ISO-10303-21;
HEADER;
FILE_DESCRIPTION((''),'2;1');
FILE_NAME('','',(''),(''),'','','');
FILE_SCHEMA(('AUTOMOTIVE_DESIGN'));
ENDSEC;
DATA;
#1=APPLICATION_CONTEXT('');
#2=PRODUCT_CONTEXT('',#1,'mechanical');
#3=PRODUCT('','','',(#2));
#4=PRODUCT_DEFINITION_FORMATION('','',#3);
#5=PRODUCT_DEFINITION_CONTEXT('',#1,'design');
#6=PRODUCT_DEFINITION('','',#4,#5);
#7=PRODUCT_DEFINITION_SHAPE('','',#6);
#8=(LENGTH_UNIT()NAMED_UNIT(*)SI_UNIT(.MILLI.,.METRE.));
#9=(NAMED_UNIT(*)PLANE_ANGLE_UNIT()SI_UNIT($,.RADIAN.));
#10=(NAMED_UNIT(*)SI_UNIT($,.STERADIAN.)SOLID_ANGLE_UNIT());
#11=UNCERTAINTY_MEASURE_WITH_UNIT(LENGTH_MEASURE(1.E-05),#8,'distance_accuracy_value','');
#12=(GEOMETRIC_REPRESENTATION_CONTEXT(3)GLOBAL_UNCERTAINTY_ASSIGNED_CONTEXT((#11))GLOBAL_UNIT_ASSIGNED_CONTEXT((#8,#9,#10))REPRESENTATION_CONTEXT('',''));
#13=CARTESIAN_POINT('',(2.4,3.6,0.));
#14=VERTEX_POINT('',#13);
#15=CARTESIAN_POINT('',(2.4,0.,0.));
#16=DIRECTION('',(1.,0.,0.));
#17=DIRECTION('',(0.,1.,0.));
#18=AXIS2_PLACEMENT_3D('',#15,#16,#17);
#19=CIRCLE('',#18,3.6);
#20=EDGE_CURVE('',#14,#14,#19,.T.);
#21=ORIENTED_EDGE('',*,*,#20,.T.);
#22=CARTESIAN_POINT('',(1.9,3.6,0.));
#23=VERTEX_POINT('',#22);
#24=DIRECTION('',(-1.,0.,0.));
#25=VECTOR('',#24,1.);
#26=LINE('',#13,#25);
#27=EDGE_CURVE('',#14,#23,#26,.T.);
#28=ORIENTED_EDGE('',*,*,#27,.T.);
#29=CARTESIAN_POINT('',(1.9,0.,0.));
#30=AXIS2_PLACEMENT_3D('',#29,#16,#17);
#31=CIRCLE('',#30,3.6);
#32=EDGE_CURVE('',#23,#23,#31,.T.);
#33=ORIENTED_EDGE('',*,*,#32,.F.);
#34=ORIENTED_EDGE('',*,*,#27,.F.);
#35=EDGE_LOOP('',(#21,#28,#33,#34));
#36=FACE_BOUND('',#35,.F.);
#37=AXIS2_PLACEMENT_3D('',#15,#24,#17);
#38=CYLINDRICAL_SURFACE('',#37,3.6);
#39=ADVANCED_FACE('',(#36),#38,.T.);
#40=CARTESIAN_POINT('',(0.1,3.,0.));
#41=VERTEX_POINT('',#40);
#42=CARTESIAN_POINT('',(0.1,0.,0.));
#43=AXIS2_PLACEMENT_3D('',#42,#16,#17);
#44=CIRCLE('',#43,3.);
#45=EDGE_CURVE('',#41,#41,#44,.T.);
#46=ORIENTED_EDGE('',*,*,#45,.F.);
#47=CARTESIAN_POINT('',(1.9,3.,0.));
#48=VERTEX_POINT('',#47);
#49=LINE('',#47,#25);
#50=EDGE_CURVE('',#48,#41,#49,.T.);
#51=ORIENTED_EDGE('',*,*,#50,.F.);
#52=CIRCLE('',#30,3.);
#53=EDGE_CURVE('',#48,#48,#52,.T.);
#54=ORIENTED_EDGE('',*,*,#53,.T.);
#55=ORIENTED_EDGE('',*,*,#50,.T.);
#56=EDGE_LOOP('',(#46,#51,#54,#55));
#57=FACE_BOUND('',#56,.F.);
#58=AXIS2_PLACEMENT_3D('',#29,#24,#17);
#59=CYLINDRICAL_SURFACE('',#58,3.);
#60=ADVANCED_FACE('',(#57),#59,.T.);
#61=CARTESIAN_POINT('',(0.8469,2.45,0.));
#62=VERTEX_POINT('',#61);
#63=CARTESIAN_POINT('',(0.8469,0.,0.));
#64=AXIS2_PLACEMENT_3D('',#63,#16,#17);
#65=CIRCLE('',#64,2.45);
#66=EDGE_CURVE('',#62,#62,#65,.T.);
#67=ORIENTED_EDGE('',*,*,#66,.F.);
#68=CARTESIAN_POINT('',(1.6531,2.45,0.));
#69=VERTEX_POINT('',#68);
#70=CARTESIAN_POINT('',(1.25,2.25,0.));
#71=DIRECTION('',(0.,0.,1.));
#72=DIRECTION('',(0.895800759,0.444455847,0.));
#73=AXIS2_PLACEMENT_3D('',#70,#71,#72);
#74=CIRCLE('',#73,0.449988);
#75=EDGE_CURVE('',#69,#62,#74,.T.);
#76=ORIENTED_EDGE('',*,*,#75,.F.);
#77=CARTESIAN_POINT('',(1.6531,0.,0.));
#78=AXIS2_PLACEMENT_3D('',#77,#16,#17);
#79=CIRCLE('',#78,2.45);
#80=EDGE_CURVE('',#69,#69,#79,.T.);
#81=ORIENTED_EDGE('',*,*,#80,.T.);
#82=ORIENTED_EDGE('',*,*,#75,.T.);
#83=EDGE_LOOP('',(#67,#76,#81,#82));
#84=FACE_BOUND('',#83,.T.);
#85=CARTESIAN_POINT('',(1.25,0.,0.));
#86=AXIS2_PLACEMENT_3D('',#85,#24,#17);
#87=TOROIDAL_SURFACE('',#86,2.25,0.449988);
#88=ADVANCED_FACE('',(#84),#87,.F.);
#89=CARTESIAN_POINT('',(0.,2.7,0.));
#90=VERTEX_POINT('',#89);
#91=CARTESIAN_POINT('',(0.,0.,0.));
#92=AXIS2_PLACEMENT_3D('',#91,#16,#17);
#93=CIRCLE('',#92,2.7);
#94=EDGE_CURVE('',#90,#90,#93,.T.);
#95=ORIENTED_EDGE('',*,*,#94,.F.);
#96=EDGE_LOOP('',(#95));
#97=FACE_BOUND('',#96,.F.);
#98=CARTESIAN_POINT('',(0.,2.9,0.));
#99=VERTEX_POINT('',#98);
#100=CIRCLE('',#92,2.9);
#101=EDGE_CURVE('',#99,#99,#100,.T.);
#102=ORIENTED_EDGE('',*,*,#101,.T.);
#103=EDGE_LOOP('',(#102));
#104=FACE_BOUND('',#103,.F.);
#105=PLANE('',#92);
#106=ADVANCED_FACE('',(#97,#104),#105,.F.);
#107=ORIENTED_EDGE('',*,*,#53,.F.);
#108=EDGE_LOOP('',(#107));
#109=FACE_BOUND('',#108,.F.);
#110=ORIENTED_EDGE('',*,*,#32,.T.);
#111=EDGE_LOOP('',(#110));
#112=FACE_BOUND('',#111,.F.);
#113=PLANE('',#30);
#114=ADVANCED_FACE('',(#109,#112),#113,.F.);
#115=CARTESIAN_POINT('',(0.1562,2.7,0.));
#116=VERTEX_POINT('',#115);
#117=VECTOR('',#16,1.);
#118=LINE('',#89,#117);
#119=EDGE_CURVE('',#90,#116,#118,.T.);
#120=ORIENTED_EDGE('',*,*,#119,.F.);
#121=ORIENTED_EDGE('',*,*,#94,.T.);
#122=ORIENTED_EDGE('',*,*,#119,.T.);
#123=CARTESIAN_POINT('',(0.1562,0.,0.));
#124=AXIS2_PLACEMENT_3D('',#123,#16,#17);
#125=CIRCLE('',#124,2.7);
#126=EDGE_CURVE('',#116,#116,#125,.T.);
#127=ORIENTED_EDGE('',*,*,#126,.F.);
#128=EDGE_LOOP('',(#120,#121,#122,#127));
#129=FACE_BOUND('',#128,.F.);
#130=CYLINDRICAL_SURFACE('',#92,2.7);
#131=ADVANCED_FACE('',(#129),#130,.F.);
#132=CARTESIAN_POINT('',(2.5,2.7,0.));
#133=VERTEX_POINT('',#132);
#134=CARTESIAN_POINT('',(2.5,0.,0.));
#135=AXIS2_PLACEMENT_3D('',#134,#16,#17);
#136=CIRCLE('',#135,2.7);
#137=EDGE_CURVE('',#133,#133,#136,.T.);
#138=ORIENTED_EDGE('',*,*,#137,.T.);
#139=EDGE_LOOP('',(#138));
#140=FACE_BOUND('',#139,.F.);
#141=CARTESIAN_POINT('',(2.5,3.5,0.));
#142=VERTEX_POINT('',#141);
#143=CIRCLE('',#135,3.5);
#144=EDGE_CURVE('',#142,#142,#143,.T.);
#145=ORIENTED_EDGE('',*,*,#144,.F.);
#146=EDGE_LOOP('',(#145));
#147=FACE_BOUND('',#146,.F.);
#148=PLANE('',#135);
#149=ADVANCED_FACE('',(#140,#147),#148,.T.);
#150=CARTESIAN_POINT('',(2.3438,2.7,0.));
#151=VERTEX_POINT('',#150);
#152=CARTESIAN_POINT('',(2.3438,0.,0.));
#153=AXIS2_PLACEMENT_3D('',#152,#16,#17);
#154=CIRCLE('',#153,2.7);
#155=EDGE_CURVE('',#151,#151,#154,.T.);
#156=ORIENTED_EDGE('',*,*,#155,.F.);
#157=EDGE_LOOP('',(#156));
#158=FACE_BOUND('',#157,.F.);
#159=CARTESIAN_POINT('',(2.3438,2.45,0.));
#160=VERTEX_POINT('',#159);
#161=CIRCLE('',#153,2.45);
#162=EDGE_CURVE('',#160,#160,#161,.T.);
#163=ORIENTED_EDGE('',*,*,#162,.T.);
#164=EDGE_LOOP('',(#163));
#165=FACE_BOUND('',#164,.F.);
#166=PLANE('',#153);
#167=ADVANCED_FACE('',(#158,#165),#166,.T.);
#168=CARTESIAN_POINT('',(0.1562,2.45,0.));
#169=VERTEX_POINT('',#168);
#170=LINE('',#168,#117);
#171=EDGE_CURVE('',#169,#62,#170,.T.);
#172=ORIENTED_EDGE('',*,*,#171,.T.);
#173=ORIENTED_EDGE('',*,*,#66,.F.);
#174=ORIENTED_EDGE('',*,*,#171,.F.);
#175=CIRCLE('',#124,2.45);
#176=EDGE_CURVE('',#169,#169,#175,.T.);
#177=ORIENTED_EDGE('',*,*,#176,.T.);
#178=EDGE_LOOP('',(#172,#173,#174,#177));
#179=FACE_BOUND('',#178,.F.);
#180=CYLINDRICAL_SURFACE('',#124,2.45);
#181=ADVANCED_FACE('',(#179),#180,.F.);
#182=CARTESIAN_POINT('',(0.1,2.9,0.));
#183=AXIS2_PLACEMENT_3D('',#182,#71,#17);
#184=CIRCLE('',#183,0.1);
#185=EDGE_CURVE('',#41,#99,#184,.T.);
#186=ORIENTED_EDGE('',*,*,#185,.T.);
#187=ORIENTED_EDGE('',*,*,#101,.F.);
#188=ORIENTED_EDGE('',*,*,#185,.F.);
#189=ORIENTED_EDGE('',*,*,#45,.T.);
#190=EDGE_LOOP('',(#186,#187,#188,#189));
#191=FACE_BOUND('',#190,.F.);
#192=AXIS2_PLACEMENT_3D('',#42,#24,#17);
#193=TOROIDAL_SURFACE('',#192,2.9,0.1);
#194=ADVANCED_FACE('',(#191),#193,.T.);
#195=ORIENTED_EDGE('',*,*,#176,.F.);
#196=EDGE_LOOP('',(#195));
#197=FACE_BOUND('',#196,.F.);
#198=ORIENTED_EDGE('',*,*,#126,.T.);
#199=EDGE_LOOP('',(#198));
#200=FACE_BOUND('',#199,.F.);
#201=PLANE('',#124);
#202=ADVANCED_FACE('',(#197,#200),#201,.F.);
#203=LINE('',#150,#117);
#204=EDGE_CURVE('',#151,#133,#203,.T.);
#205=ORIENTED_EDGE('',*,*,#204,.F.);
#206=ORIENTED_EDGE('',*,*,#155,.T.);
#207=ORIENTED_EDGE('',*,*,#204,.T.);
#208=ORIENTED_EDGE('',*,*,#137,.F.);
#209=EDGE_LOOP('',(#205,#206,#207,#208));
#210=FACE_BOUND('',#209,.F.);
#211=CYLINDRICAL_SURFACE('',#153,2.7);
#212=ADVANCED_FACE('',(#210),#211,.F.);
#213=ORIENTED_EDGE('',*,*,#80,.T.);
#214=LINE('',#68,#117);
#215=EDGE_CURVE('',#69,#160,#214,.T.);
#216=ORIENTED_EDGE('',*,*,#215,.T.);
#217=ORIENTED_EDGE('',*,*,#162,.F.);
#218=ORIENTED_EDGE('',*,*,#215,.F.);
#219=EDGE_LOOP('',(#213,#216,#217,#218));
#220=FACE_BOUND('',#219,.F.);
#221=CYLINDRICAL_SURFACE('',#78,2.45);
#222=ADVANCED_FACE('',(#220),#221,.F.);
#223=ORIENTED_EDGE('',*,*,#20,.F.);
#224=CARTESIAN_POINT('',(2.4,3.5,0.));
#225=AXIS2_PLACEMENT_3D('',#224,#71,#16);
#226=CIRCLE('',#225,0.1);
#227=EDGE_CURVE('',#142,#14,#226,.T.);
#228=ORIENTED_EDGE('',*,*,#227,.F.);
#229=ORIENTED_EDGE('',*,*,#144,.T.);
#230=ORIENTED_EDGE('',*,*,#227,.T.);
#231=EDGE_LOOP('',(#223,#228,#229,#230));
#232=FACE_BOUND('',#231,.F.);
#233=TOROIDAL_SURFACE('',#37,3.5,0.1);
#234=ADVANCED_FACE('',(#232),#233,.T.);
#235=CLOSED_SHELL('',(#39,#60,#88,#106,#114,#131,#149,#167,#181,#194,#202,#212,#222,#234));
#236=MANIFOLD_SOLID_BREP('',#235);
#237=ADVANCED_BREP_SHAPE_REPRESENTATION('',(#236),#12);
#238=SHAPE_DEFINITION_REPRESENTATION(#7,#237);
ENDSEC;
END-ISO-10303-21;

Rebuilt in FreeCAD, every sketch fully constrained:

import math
import FreeCAD as App
import Part
import Sketcher

doc = App.newDocument("Part")
body = doc.addObject("PartDesign::Body", "Body")

# Sketch on XY plane
sketch1 = doc.addObject("Sketcher::SketchObject", "Sketch")
body.addObject(sketch1)
sketch1.AttachmentSupport = (doc.XY_Plane, [""])
sketch1.MapMode = "FlatFace"
sketch1.addGeometry(Part.LineSegment(App.Vector(0, 2.9, 0), App.Vector(0, 2.7, 0)), False)
sketch1.addGeometry(Part.LineSegment(App.Vector(0, 2.7, 0), App.Vector(0.1562, 2.7, 0)), False)
sketch1.addGeometry(Part.LineSegment(App.Vector(0.1562, 2.7, 0), App.Vector(0.1562, 2.45, 0)), False)
sketch1.addGeometry(Part.LineSegment(App.Vector(0.1562, 2.45, 0), App.Vector(0.8469, 2.45, 0)), False)
sketch1.addGeometry(Part.ArcOfCircle(Part.Circle(App.Vector(1.25, 2.25, 0), App.Vector(0, 0, 1), 0.449988), math.radians(26.388529), math.radians(153.611471)), False)
sketch1.addGeometry(Part.LineSegment(App.Vector(1.6531, 2.45, 0), App.Vector(2.3438, 2.45, 0)), False)
sketch1.addGeometry(Part.LineSegment(App.Vector(2.3438, 2.45, 0), App.Vector(2.3438, 2.7, 0)), False)
sketch1.addGeometry(Part.LineSegment(App.Vector(2.3438, 2.7, 0), App.Vector(2.5, 2.7, 0)), False)
sketch1.addGeometry(Part.LineSegment(App.Vector(2.5, 2.7, 0), App.Vector(2.5, 3.5, 0)), False)
sketch1.addGeometry(Part.ArcOfCircle(Part.Circle(App.Vector(2.4, 3.5, 0), App.Vector(0, 0, 1), 0.1), math.radians(0), math.radians(90)), False)
sketch1.addGeometry(Part.LineSegment(App.Vector(2.4, 3.6, 0), App.Vector(1.9, 3.6, 0)), False)
sketch1.addGeometry(Part.LineSegment(App.Vector(1.9, 3.6, 0), App.Vector(1.9, 3, 0)), False)
sketch1.addGeometry(Part.LineSegment(App.Vector(1.9, 3, 0), App.Vector(0.1, 3, 0)), False)
sketch1.addGeometry(Part.ArcOfCircle(Part.Circle(App.Vector(0.1, 2.9, 0), App.Vector(0, 0, 1), 0.1), math.radians(90), math.radians(180)), False)
sketch1.addConstraint(Sketcher.Constraint("Coincident", 0, 2, 1, 1))
sketch1.addConstraint(Sketcher.Constraint("Coincident", 1, 2, 2, 1))
sketch1.addConstraint(Sketcher.Constraint("Coincident", 2, 2, 3, 1))
sketch1.addConstraint(Sketcher.Constraint("Coincident", 3, 2, 4, 2))
sketch1.addConstraint(Sketcher.Constraint("Coincident", 4, 1, 5, 1))
sketch1.addConstraint(Sketcher.Constraint("Coincident", 5, 2, 6, 1))
sketch1.addConstraint(Sketcher.Constraint("Coincident", 6, 2, 7, 1))
sketch1.addConstraint(Sketcher.Constraint("Coincident", 7, 2, 8, 1))
sketch1.addConstraint(Sketcher.Constraint("Tangent", 8, 2, 9, 1))
sketch1.addConstraint(Sketcher.Constraint("Tangent", 9, 2, 10, 1))
sketch1.addConstraint(Sketcher.Constraint("Coincident", 10, 2, 11, 1))
sketch1.addConstraint(Sketcher.Constraint("Coincident", 11, 2, 12, 1))
sketch1.addConstraint(Sketcher.Constraint("Tangent", 12, 2, 13, 1))
sketch1.addConstraint(Sketcher.Constraint("Tangent", 13, 2, 0, 1))
sketch1.addConstraint(Sketcher.Constraint("Vertical", 0))
sketch1.addConstraint(Sketcher.Constraint("Horizontal", 1))
sketch1.addConstraint(Sketcher.Constraint("Vertical", 2))
sketch1.addConstraint(Sketcher.Constraint("Horizontal", 3))
sketch1.addConstraint(Sketcher.Constraint("Horizontal", 5))
sketch1.addConstraint(Sketcher.Constraint("Vertical", 6))
sketch1.addConstraint(Sketcher.Constraint("Horizontal", 7))
sketch1.addConstraint(Sketcher.Constraint("Vertical", 8))
sketch1.addConstraint(Sketcher.Constraint("Horizontal", 10))
sketch1.addConstraint(Sketcher.Constraint("Vertical", 11))
sketch1.addConstraint(Sketcher.Constraint("Horizontal", 12))
sketch1.addConstraint(Sketcher.Constraint("Equal", 9, 13))
sketch1.addConstraint(Sketcher.Constraint("PointOnObject", 0, 2, -2))
sketch1.addConstraint(Sketcher.Constraint("Horizontal", 3, 2, 4, 1))
sketch1.addConstraint(Sketcher.Constraint("Horizontal", 1, 2, 6, 2))
sketch1.addConstraint(Sketcher.Constraint("Equal", 3, 5))
sketch1.addConstraint(Sketcher.Constraint("Equal", 1, 7))
sketch1.addConstraint(Sketcher.Constraint("Radius", 9, 0.1))
sketch1.addConstraint(Sketcher.Constraint("Radius", 4, 0.45))
sketch1.addConstraint(Sketcher.Constraint("DistanceX", 10, 2, 10, 1, 0.5))
sketch1.addConstraint(Sketcher.Constraint("DistanceX", 12, 2, 12, 1, 1.8))
sketch1.addConstraint(Sketcher.Constraint("DistanceY", 0, 2, 0, 1, 0.2))
sketch1.addConstraint(Sketcher.Constraint("DistanceY", 8, 1, 8, 2, 0.8))
sketch1.addConstraint(Sketcher.Constraint("DistanceY", -1, 1, 11, 2, 3.0))
sketch1.addConstraint(Sketcher.Constraint("DistanceY", 2, 2, 2, 1, 0.25))
sketch1.addConstraint(Sketcher.Constraint("DistanceY", 4, 3, 2, 2, 0.2))
sketch1.addConstraint(Sketcher.Constraint("DistanceX", 1, 1, 1, 2, 0.1562))
revolution = doc.addObject("PartDesign::Revolution", "Revolution")
body.addObject(revolution)
revolution.Profile = sketch1
revolution.ReferenceAxis = (sketch1, ["H_Axis"])
revolution.Angle = 360

doc.recompute()
